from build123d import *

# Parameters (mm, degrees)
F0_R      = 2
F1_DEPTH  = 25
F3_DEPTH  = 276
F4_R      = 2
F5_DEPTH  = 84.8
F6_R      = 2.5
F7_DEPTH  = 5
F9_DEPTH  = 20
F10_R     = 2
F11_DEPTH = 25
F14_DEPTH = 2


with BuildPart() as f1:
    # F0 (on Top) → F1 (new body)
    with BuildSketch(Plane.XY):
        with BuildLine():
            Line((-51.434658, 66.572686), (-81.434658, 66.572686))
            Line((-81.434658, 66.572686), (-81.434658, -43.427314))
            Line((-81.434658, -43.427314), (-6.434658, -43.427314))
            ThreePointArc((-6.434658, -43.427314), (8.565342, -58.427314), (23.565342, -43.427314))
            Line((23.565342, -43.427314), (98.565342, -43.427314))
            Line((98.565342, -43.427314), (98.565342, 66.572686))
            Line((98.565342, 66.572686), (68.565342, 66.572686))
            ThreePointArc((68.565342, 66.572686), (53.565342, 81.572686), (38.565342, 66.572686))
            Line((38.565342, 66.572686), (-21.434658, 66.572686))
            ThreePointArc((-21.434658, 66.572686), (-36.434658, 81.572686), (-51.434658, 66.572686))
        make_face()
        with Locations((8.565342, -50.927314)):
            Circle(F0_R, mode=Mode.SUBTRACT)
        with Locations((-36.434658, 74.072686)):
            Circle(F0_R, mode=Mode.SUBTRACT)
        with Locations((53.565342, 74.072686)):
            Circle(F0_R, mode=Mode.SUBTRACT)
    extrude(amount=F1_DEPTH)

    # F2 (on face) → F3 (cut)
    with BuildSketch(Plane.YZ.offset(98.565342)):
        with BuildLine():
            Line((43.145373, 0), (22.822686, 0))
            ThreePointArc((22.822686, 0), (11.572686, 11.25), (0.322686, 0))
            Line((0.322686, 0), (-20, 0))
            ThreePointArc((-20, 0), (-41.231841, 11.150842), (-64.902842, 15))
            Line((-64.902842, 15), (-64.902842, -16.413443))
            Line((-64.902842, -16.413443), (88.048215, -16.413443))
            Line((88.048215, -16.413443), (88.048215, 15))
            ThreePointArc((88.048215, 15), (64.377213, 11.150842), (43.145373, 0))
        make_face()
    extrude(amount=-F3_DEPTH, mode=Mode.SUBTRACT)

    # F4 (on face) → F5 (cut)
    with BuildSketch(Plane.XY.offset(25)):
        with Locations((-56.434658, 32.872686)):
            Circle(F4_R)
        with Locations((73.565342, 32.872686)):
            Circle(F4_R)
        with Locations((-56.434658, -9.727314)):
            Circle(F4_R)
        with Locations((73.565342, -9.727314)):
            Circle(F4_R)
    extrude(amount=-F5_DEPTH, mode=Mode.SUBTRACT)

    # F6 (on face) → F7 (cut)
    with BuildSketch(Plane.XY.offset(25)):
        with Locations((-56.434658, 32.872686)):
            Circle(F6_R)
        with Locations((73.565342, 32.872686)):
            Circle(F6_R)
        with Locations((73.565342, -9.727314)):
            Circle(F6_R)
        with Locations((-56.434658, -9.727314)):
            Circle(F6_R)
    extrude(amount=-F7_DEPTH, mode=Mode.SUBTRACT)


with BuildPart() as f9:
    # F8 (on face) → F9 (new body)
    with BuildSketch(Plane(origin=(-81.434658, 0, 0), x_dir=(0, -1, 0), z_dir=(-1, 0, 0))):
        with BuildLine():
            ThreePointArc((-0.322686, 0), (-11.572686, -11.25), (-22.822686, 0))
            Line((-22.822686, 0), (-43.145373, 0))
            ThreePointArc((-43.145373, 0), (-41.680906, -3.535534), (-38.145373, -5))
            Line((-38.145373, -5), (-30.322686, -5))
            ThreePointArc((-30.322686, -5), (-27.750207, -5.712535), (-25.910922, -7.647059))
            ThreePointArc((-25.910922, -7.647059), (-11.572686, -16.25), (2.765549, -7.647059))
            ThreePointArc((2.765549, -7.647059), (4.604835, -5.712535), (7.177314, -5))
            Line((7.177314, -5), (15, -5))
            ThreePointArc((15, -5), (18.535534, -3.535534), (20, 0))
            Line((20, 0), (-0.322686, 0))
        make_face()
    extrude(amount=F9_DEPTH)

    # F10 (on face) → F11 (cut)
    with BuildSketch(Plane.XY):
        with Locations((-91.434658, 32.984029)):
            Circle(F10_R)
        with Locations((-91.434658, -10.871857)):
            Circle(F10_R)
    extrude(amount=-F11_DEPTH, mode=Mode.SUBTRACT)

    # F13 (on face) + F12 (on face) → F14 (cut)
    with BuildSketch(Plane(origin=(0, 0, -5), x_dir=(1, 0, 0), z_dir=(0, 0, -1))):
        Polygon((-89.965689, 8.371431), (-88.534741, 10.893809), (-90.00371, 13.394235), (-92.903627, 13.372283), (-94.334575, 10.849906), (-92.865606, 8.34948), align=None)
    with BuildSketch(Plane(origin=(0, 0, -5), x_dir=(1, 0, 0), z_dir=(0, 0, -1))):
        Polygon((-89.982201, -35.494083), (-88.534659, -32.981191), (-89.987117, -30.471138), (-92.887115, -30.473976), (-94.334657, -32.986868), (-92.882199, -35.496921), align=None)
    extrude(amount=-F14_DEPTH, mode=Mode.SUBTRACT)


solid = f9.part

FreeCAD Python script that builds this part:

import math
import FreeCAD as App
import Part
import Sketcher
Q = App.Units.Quantity

doc = App.newDocument("Part")
body = doc.addObject("PartDesign::Body", "Body")

# Sketch on XY plane
sketch1 = body.newObject("Sketcher::SketchObject", "Sketch")
sketch1.AttachmentSupport = (doc.getObject("XY_Plane"), [""])
sketch1.MapMode = "FlatFace"
sketch1.addGeometry(Part.LineSegment(App.Vector(-51.4, 66.6, 0), App.Vector(-81.4, 66.6, 0)), False)
sketch1.addGeometry(Part.LineSegment(App.Vector(-81.4, 66.6, 0), App.Vector(-81.4, -43.4, 0)), False)
sketch1.addGeometry(Part.LineSegment(App.Vector(-81.4, -43.4, 0), App.Vector(-6.4, -43.4, 0)), False)
sketch1.addGeometry(Part.ArcOfCircle(Part.Circle(App.Vector(8.6, -43.4, 0), App.Vector(0, 0, 1), 15), math.radians(180), math.radians(360)), False)
sketch1.addGeometry(Part.LineSegment(App.Vector(23.6, -43.4, 0), App.Vector(98.6, -43.4, 0)), False)
sketch1.addGeometry(Part.LineSegment(App.Vector(98.6, -43.4, 0), App.Vector(98.6, 66.6, 0)), False)
sketch1.addGeometry(Part.LineSegment(App.Vector(98.6, 66.6, 0), App.Vector(68.6, 66.6, 0)), False)
sketch1.addGeometry(Part.ArcOfCircle(Part.Circle(App.Vector(53.6, 66.6, 0), App.Vector(0, 0, 1), 15), math.radians(0), math.radians(180)), False)
sketch1.addGeometry(Part.LineSegment(App.Vector(38.6, 66.6, 0), App.Vector(-21.4, 66.6, 0)), False)
sketch1.addGeometry(Part.ArcOfCircle(Part.Circle(App.Vector(-36.4, 66.6, 0), App.Vector(0, 0, 1), 15), math.radians(0), math.radians(180)), False)
sketch1.addGeometry(Part.Circle(App.Vector(8.6, -50.9, 0), App.Vector(0, 0, 1), 2), False)
sketch1.addGeometry(Part.Circle(App.Vector(-36.4, 74.1, 0), App.Vector(0, 0, 1), 2), False)
sketch1.addGeometry(Part.Circle(App.Vector(53.6, 74.1, 0), App.Vector(0, 0, 1), 2), False)
sketch1.addConstraint(Sketcher.Constraint("Coincident", 0, 2, 1, 1))
sketch1.addConstraint(Sketcher.Constraint("Coincident", 1, 2, 2, 1))
sketch1.addConstraint(Sketcher.Constraint("Coincident", 2, 2, 3, 1))
sketch1.addConstraint(Sketcher.Constraint("Coincident", 3, 2, 4, 1))
sketch1.addConstraint(Sketcher.Constraint("Coincident", 4, 2, 5, 1))
sketch1.addConstraint(Sketcher.Constraint("Coincident", 5, 2, 6, 1))
sketch1.addConstraint(Sketcher.Constraint("Coincident", 6, 2, 7, 1))
sketch1.addConstraint(Sketcher.Constraint("Coincident", 7, 2, 8, 1))
sketch1.addConstraint(Sketcher.Constraint("Coincident", 8, 2, 9, 1))
sketch1.addConstraint(Sketcher.Constraint("Coincident", 9, 2, 0, 1))
sketch1.addConstraint(Sketcher.Constraint("Horizontal", 0))
sketch1.addConstraint(Sketcher.Constraint("Vertical", 1))
sketch1.addConstraint(Sketcher.Constraint("Horizontal", 2))
sketch1.addConstraint(Sketcher.Constraint("Horizontal", 4))
sketch1.addConstraint(Sketcher.Constraint("Vertical", 5))
sketch1.addConstraint(Sketcher.Constraint("Horizontal", 6))
sketch1.addConstraint(Sketcher.Constraint("Horizontal", 8))
sketch1.addConstraint(Sketcher.Constraint("Equal", 3, 7))
sketch1.addConstraint(Sketcher.Constraint("Equal", 7, 9))
sketch1.addConstraint(Sketcher.Constraint("Equal", 10, 11))
sketch1.addConstraint(Sketcher.Constraint("Equal", 11, 12))
sketch1.addConstraint(Sketcher.Constraint("Horizontal", 7, 3, 9, 3))
sketch1.addConstraint(Sketcher.Constraint("Horizontal", 11, 3, 12, 3))
sketch1.addConstraint(Sketcher.Constraint("Horizontal", 9, 3, 0, 2))
sketch1.addConstraint(Sketcher.Constraint("Horizontal", 3, 3, 1, 2))
sketch1.addConstraint(Sketcher.Constraint("Horizontal", 2, 2, 3, 2))
sketch1.addConstraint(Sketcher.Constraint("Horizontal", 0, 2, 5, 2))
sketch1.addConstraint(Sketcher.Constraint("Horizontal", 6, 2, 7, 2))
sketch1.addConstraint(Sketcher.Constraint("Vertical", 3, 3, 10, 3))
sketch1.addConstraint(Sketcher.Constraint("Vertical", 9, 3, 11, 3))
sketch1.addConstraint(Sketcher.Constraint("Vertical", 7, 3, 12, 3))
sketch1.addConstraint(Sketcher.Constraint("Equal", 2, 4))
sketch1.addConstraint(Sketcher.Constraint("Equal", 0, 6))
sketch1.addConstraint(Sketcher.Constraint("Diameter", 10, Q("4 mm")))
sketch1.addConstraint(Sketcher.Constraint("Radius", 3, Q("15 mm")))
sketch1.addConstraint(Sketcher.Constraint("DistanceX", 0, 2, 0, 1, Q("30 mm")))
sketch1.addConstraint(Sketcher.Constraint("DistanceX", 2, 1, 2, 2, Q("75 mm")))
sketch1.addConstraint(Sketcher.Constraint("DistanceY", 1, 2, 1, 1, Q("110 mm")))
sketch1.addConstraint(Sketcher.Constraint("DistanceY", 10, 3, 11, 3, Q("125 mm")))
sketch1.addConstraint(Sketcher.Constraint("DistanceY", 10, 3, 3, 3, Q("7.5 mm")))
sketch1.addConstraint(Sketcher.Constraint("DistanceX", -1, 1, 3, 3, Q("8.565342 mm")))
sketch1.addConstraint(Sketcher.Constraint("DistanceY", 3, 3, -1, 1, Q("43.427314 mm")))
pad1 = body.newObject("PartDesign::Pad", "Pad")
pad1.Profile = sketch1
pad1.Length = 25

# Sketch on YZ plane
sketch2 = body.newObject("Sketcher::SketchObject", "Sketch001")
sketch2.AttachmentSupport = (doc.getObject("YZ_Plane"), [""])
sketch2.MapMode = "FlatFace"
sketch2.AttachmentOffset = App.Placement(App.Vector(0, 0, 98.565342), App.Rotation())
sketch2.addGeometry(Part.LineSegment(App.Vector(43, 0, 0), App.Vector(23, 0, 0)), False)
sketch2.addGeometry(Part.ArcOfCircle(Part.Circle(App.Vector(12, 0, 0), App.Vector(0, 0, 1), 11), math.radians(0), math.radians(180)), False)
sketch2.addGeometry(Part.LineSegment(App.Vector(0, 0, 0), App.Vector(-20, 0, 0)), False)
sketch2.addGeometry(Part.ArcOfCircle(Part.Circle(App.Vector(-65, -60, 0), App.Vector(0, 0, 1), 75), math.radians(53), math.radians(90)), False)
sketch2.addGeometry(Part.LineSegment(App.Vector(-65, 15, 0), App.Vector(-65, -16, 0)), False)
sketch2.addGeometry(Part.LineSegment(App.Vector(-65, -16, 0), App.Vector(88, -16, 0)), False)
sketch2.addGeometry(Part.LineSegment(App.Vector(88, -16, 0), App.Vector(88, 15, 0)), False)
sketch2.addGeometry(Part.ArcOfCircle(Part.Circle(App.Vector(88, -60, 0), App.Vector(0, 0, 1), 75), math.radians(90), math.radians(127)), False)
sketch2.addConstraint(Sketcher.Constraint("Coincident", 0, 2, 1, 1))
sketch2.addConstraint(Sketcher.Constraint("Coincident", 1, 2, 2, 1))
sketch2.addConstraint(Sketcher.Constraint("Coincident", 2, 2, 3, 1))
sketch2.addConstraint(Sketcher.Constraint("Coincident", 3, 2, 4, 1))
sketch2.addConstraint(Sketcher.Constraint("Coincident", 4, 2, 5, 1))
sketch2.addConstraint(Sketcher.Constraint("Coincident", 5, 2, 6, 1))
sketch2.addConstraint(Sketcher.Constraint("Coincident", 6, 2, 7, 1))
sketch2.addConstraint(Sketcher.Constraint("Coincident", 7, 2, 0, 1))
sketch2.addConstraint(Sketcher.Constraint("Horizontal", 0))
sketch2.addConstraint(Sketcher.Constraint("Horizontal", 2))
sketch2.addConstraint(Sketcher.Constraint("Vertical", 4))
sketch2.addConstraint(Sketcher.Constraint("Horizontal", 5))
sketch2.addConstraint(Sketcher.Constraint("Vertical", 6))
sketch2.addConstraint(Sketcher.Constraint("PointOnObject", 1, 3, -1))
sketch2.addConstraint(Sketcher.Constraint("PointOnObject", 0, 2, -1))
sketch2.addConstraint(Sketcher.Constraint("PointOnObject", 1, 2, -1))
sketch2.addConstraint(Sketcher.Constraint("Horizontal", 3, 2, 6, 2))
sketch2.addConstraint(Sketcher.Constraint("Equal", 0, 2))
sketch2.addConstraint(Sketcher.Constraint("Radius", 1, Q("11.25 mm")))
sketch2.addConstraint(Sketcher.Constraint("DistanceX", 2, 2, -1, 1, Q("20 mm")))
sketch2.addConstraint(Sketcher.Constraint("DistanceY", -1, 1, 3, 2, Q("15 mm")))
sketch2.addConstraint(Sketcher.Constraint("Radius", 7, Q("74.70883 mm")))
sketch2.addConstraint(Sketcher.Constraint("Radius", 3, Q("74.708835 mm")))
sketch2.addConstraint(Sketcher.Constraint("DistanceX", 0, 2, 0, 1, Q("20.322687 mm")))
sketch2.addConstraint(Sketcher.Constraint("DistanceX", 5, 1, 5, 2, Q("152.951057 mm")))
sketch2.addConstraint(Sketcher.Constraint("DistanceY", 4, 2, 4, 1, Q("31.413443 mm")))
sketch2.addConstraint(Sketcher.Constraint("DistanceX", 3, 2, 1, 2, Q("65.225528 mm")))
pocket1 = body.newObject("PartDesign::Pocket", "Pocket")
pocket1.Profile = sketch2
pocket1.Length = 276

# Sketch on XY plane
sketch3 = body.newObject("Sketcher::SketchObject", "Sketch002")
sketch3.AttachmentSupport = (doc.getObject("XY_Plane"), [""])
sketch3.MapMode = "FlatFace"
sketch3.AttachmentOffset = App.Placement(App.Vector(0, 0, 25), App.Rotation())
sketch3.addGeometry(Part.Circle(App.Vector(-56.4, 32.9, 0), App.Vector(0, 0, 1), 2), False)
sketch3.addGeometry(Part.Circle(App.Vector(73.6, 32.9, 0), App.Vector(0, 0, 1), 2), False)
sketch3.addGeometry(Part.Circle(App.Vector(-56.4, -9.7, 0), App.Vector(0, 0, 1), 2), False)
sketch3.addGeometry(Part.Circle(App.Vector(73.6, -9.7, 0), App.Vector(0, 0, 1), 2), False)
sketch3.addConstraint(Sketcher.Constraint("Equal", 0, 1))
sketch3.addConstraint(Sketcher.Constraint("Equal", 1, 2))
sketch3.addConstraint(Sketcher.Constraint("Equal", 2, 3))
sketch3.addConstraint(Sketcher.Constraint("Horizontal", 0, 3, 1, 3))
sketch3.addConstraint(Sketcher.Constraint("Horizontal", 2, 3, 3, 3))
sketch3.addConstraint(Sketcher.Constraint("Vertical", 0, 3, 2, 3))
sketch3.addConstraint(Sketcher.Constraint("Vertical", 1, 3, 3, 3))
sketch3.addConstraint(Sketcher.Constraint("Diameter", 0, Q("4 mm")))
sketch3.addConstraint(Sketcher.Constraint("DistanceX", 0, 3, 1, 3, Q("130 mm")))
sketch3.addConstraint(Sketcher.Constraint("DistanceY", 2, 3, 0, 3, Q("42.6 mm")))
sketch3.addConstraint(Sketcher.Constraint("DistanceX", -1, 1, 1, 3, Q("73.565342 mm")))
sketch3.addConstraint(Sketcher.Constraint("DistanceY", -1, 1, 0, 3, Q("32.872686 mm")))
pocket2 = body.newObject("PartDesign::Pocket", "Pocket001")
pocket2.Profile = sketch3
pocket2.Length = 84.8

# Sketch on XY plane
sketch4 = body.newObject("Sketcher::SketchObject", "Sketch003")
sketch4.AttachmentSupport = (doc.getObject("XY_Plane"), [""])
sketch4.MapMode = "FlatFace"
sketch4.AttachmentOffset = App.Placement(App.Vector(0, 0, 25), App.Rotation())
sketch4.addGeometry(Part.Circle(App.Vector(-56.4, 32.9, 0), App.Vector(0, 0, 1), 2.5), False)
sketch4.addGeometry(Part.Circle(App.Vector(73.6, 32.9, 0), App.Vector(0, 0, 1), 2.5), False)
sketch4.addGeometry(Part.Circle(App.Vector(73.6, -9.7, 0), App.Vector(0, 0, 1), 2.5), False)
sketch4.addGeometry(Part.Circle(App.Vector(-56.4, -9.7, 0), App.Vector(0, 0, 1), 2.5), False)
sketch4.addConstraint(Sketcher.Constraint("Equal", 0, 1))
sketch4.addConstraint(Sketcher.Constraint("Equal", 1, 2))
sketch4.addConstraint(Sketcher.Constraint("Equal", 2, 3))
sketch4.addConstraint(Sketcher.Constraint("Horizontal", 0, 3, 1, 3))
sketch4.addConstraint(Sketcher.Constraint("Horizontal", 2, 3, 3, 3))
sketch4.addConstraint(Sketcher.Constraint("Vertical", 1, 3, 2, 3))
sketch4.addConstraint(Sketcher.Constraint("Vertical", 0, 3, 3, 3))
sketch4.addConstraint(Sketcher.Constraint("Diameter", 0, Q("5 mm")))
sketch4.addConstraint(Sketcher.Constraint("DistanceX", 0, 3, 1, 3, Q("130 mm")))
sketch4.addConstraint(Sketcher.Constraint("DistanceY", 2, 3, 1, 3, Q("42.6 mm")))
sketch4.addConstraint(Sketcher.Constraint("DistanceX", -1, 1, 1, 3, Q("73.565342 mm")))
sketch4.addConstraint(Sketcher.Constraint("DistanceY", -1, 1, 0, 3, Q("32.872686 mm")))
pocket3 = body.newObject("PartDesign::Pocket", "Pocket002")
pocket3.Profile = sketch4
pocket3.Length = 5
body2 = doc.addObject("PartDesign::Body", "Body001")

# Sketch on YZ plane
sketch5 = body2.newObject("Sketcher::SketchObject", "Sketch004")
sketch5.AttachmentSupport = (doc.getObject("YZ_Plane001"), [""])
sketch5.MapMode = "FlatFace"
sketch5.AttachmentOffset = App.Placement(App.Vector(0, 0, -81.434658), App.Rotation())
sketch5.addGeometry(Part.ArcOfCircle(Part.Circle(App.Vector(11.6, 0, 0), App.Vector(0, 0, 1), 11.2), math.radians(180), math.radians(360)), False)
sketch5.addGeometry(Part.LineSegment(App.Vector(22.8, 0, 0), App.Vector(43.1, 0, 0)), False)
sketch5.addGeometry(Part.ArcOfCircle(Part.Circle(App.Vector(38.1, 0, 0), App.Vector(0, 0, 1), 5), math.radians(-90), math.radians(0)), False)
sketch5.addGeometry(Part.LineSegment(App.Vector(38.1, -5, 0), App.Vector(30.3, -5, 0)), False)
sketch5.addGeometry(Part.ArcOfCircle(Part.Circle(App.Vector(30.3, -10, 0), App.Vector(0, 0, 1), 5), math.radians(90), math.radians(152)), False)
sketch5.addGeometry(Part.ArcOfCircle(Part.Circle(App.Vector(11.6, 0, 0), App.Vector(0, 0, 1), 16.3), math.radians(-152), math.radians(-28)), False)
sketch5.addGeometry(Part.ArcOfCircle(Part.Circle(App.Vector(-7.2, -10, 0), App.Vector(0, 0, 1), 5), math.radians(28), math.radians(90)), False)
sketch5.addGeometry(Part.LineSegment(App.Vector(-7.2, -5, 0), App.Vector(-15, -5, 0)), False)
sketch5.addGeometry(Part.ArcOfCircle(Part.Circle(App.Vector(-15, 0, 0), App.Vector(0, 0, 1), 5), math.radians(180), math.radians(270)), False)
sketch5.addGeometry(Part.LineSegment(App.Vector(-20, 0, 0), App.Vector(0.3, 0, 0)), False)
sketch5.addConstraint(Sketcher.Constraint("Coincident", 0, 2, 1, 1))
sketch5.addConstraint(Sketcher.Constraint("Coincident", 1, 2, 2, 2))
sketch5.addConstraint(Sketcher.Constraint("Tangent", 2, 1, 3, 1))
sketch5.addConstraint(Sketcher.Constraint("Tangent", 3, 2, 4, 1))
sketch5.addConstraint(Sketcher.Constraint("Tangent", 4, 2, 5, 2))
sketch5.addConstraint(Sketcher.Constraint("Tangent", 5, 1, 6, 1))
sketch5.addConstraint(Sketcher.Constraint("Tangent", 6, 2, 7, 1))
sketch5.addConstraint(Sketcher.Constraint("Tangent", 7, 2, 8, 2))
sketch5.addConstraint(Sketcher.Constraint("Coincident", 8, 1, 9, 1))
sketch5.addConstraint(Sketcher.Constraint("Coincident", 9, 2, 0, 1))
sketch5.addConstraint(Sketcher.Constraint("Horizontal", 1))
sketch5.addConstraint(Sketcher.Constraint("Horizontal", 3))
sketch5.addConstraint(Sketcher.Constraint("Horizontal", 7))
sketch5.addConstraint(Sketcher.Constraint("Horizontal", 9))
sketch5.addConstraint(Sketcher.Constraint("Coincident", 5, 3, 0, 3))
sketch5.addConstraint(Sketcher.Constraint("Equal", 6, 8))
sketch5.addConstraint(Sketcher.Constraint("PointOnObject", 0, 3, -1))
sketch5.addConstraint(Sketcher.Constraint("PointOnObject", 2, 3, -1))
sketch5.addConstraint(Sketcher.Constraint("PointOnObject", 8, 3, -1))
sketch5.addConstraint(Sketcher.Constraint("PointOnObject", 0, 2, -1))
sketch5.addConstraint(Sketcher.Constraint("PointOnObject", 8, 1, -1))
sketch5.addConstraint(Sketcher.Constraint("Horizontal", 4, 2, 5, 1))
sketch5.addConstraint(Sketcher.Constraint("Horizontal", 3, 2, 6, 2))
sketch5.addConstraint(Sketcher.Constraint("Equal", 3, 7))
sketch5.addConstraint(Sketcher.Constraint("Radius", 2, Q("5.000001 mm")))
sketch5.addConstraint(Sketcher.Constraint("Radius", 0, Q("11.25 mm")))
sketch5.addConstraint(Sketcher.Constraint("Radius", 5, Q("16.25 mm")))
sketch5.addConstraint(Sketcher.Constraint("DistanceX", 8, 3, -1, 1, Q("15 mm")))
sketch5.addConstraint(Sketcher.Constraint("DistanceX", 1, 1, 1, 2, Q("20.322687 mm")))
pad2 = body2.newObject("PartDesign::Pad", "Pad001")
pad2.Profile = sketch5
pad2.Length = 20
pad2.Reversed = True

# Sketch on XY plane
sketch6 = body2.newObject("Sketcher::SketchObject", "Sketch005")
sketch6.AttachmentSupport = (doc.getObject("XY_Plane001"), [""])
sketch6.MapMode = "FlatFace"
sketch6.addGeometry(Part.Circle(App.Vector(-91.4, 33, 0), App.Vector(0, 0, 1), 2), False)
sketch6.addGeometry(Part.Circle(App.Vector(-91.4, -10.9, 0), App.Vector(0, 0, 1), 2), False)
sketch6.addConstraint(Sketcher.Constraint("Equal", 0, 1))
sketch6.addConstraint(Sketcher.Constraint("Vertical", 0, 3, 1, 3))
sketch6.addConstraint(Sketcher.Constraint("Diameter", 0, Q("4 mm")))
sketch6.addConstraint(Sketcher.Constraint("DistanceX", 0, 3, -1, 1, Q("91.434658 mm")))
sketch6.addConstraint(Sketcher.Constraint("DistanceY", -1, 1, 0, 3, Q("32.984029 mm")))
sketch6.addConstraint(Sketcher.Constraint("DistanceY", 1, 3, -1, 1, Q("10.871857 mm")))
pocket4 = body2.newObject("PartDesign::Pocket", "Pocket003")
pocket4.Profile = sketch6
pocket4.Length = 25

# Sketch on XY plane
sketch7 = body2.newObject("Sketcher::SketchObject", "Sketch006")
sketch7.AttachmentSupport = (doc.getObject("XY_Plane001"), [""])
sketch7.MapMode = "FlatFace"
sketch7.AttachmentOffset = App.Placement(App.Vector(0, 0, -5), App.Rotation())
sketch7.addGeometry(Part.LineSegment(App.Vector(-90, -8.4, 0), App.Vector(-88.5, -10.9, 0)), False)
sketch7.addGeometry(Part.LineSegment(App.Vector(-88.5, -10.9, 0), App.Vector(-90, -13.4, 0)), False)
sketch7.addGeometry(Part.LineSegment(App.Vector(-90, -13.4, 0), App.Vector(-92.9, -13.4, 0)), False)
sketch7.addGeometry(Part.LineSegment(App.Vector(-92.9, -13.4, 0), App.Vector(-94.3, -10.8, 0)), False)
sketch7.addGeometry(Part.LineSegment(App.Vector(-94.3, -10.8, 0), App.Vector(-92.9, -8.3, 0)), False)
sketch7.addGeometry(Part.LineSegment(App.Vector(-92.9, -8.3, 0), App.Vector(-90, -8.4, 0)), False)
sketch7.addGeometry(Part.LineSegment(App.Vector(-90, 35.5, 0), App.Vector(-88.5, 33, 0)), False)
sketch7.addGeometry(Part.LineSegment(App.Vector(-88.5, 33, 0), App.Vector(-90, 30.5, 0)), False)
sketch7.addGeometry(Part.LineSegment(App.Vector(-90, 30.5, 0), App.Vector(-92.9, 30.5, 0)), False)
sketch7.addGeometry(Part.LineSegment(App.Vector(-92.9, 30.5, 0), App.Vector(-94.3, 33, 0)), False)
sketch7.addGeometry(Part.LineSegment(App.Vector(-94.3, 33, 0), App.Vector(-92.9, 35.5, 0)), False)
sketch7.addGeometry(Part.LineSegment(App.Vector(-92.9, 35.5, 0), App.Vector(-90, 35.5, 0)), False)
sketch7.addConstraint(Sketcher.Constraint("Coincident", 0, 2, 1, 1))
sketch7.addConstraint(Sketcher.Constraint("Coincident", 1, 2, 2, 1))
sketch7.addConstraint(Sketcher.Constraint("Coincident", 2, 2, 3, 1))
sketch7.addConstraint(Sketcher.Constraint("Coincident", 3, 2, 4, 1))
sketch7.addConstraint(Sketcher.Constraint("Coincident", 4, 2, 5, 1))
sketch7.addConstraint(Sketcher.Constraint("Coincident", 5, 2, 0, 1))
sketch7.addConstraint(Sketcher.Constraint("Coincident", 6, 2, 7, 1))
sketch7.addConstraint(Sketcher.Constraint("Coincident", 7, 2, 8, 1))
sketch7.addConstraint(Sketcher.Constraint("Coincident", 8, 2, 9, 1))
sketch7.addConstraint(Sketcher.Constraint("Coincident", 9, 2, 10, 1))
sketch7.addConstraint(Sketcher.Constraint("Coincident", 10, 2, 11, 1))
sketch7.addConstraint(Sketcher.Constraint("Coincident", 11, 2, 6, 1))
sketch7.addConstraint(Sketcher.Constraint("Parallel", 0, 3))
sketch7.addConstraint(Sketcher.Constraint("Parallel", 1, 4))
sketch7.addConstraint(Sketcher.Constraint("Parallel", 2, 5))
sketch7.addConstraint(Sketcher.Constraint("Parallel", 6, 9))
sketch7.addConstraint(Sketcher.Constraint("Parallel", 7, 10))
sketch7.addConstraint(Sketcher.Constraint("Parallel", 8, 11))
sketch7.addConstraint(Sketcher.Constraint("Equal", 0, 1))
sketch7.addConstraint(Sketcher.Constraint("Equal", 1, 2))
sketch7.addConstraint(Sketcher.Constraint("Equal", 2, 3))
sketch7.addConstraint(Sketcher.Constraint("Equal", 5, 6))
sketch7.addConstraint(Sketcher.Constraint("Equal", 6, 7))
sketch7.addConstraint(Sketcher.Constraint("Equal", 7, 8))
sketch7.addConstraint(Sketcher.Constraint("Equal", 8, 9))
sketch7.addConstraint(Sketcher.Constraint("Distance", 0, Q("2.900001 mm")))
sketch7.addConstraint(Sketcher.Constraint("DistanceX", 9, 2, 6, 2, Q("5.799998 mm")))
sketch7.addConstraint(Sketcher.Constraint("DistanceY", 0, 2, 6, 2, Q("43.875 mm")))
sketch7.addConstraint(Sketcher.Constraint("DistanceX", 10, 2, -1, 1, Q("92.882199 mm")))
sketch7.addConstraint(Sketcher.Constraint("DistanceY", 5, 2, 9, 2, Q("41.358299 mm")))
sketch7.addConstraint(Sketcher.Constraint("DistanceY", 4, 2, 10, 2, Q("43.846401 mm")))
sketch7.addConstraint(Sketcher.Constraint("DistanceX", 0, 2, -1, 1, Q("88.534741 mm")))
sketch7.addConstraint(Sketcher.Constraint("DistanceY", 0, 2, -1, 1, Q("10.893809 mm")))
sketch7.addConstraint(Sketcher.Constraint("DistanceX", 1, 2, -1, 1, Q("90.00371 mm")))
sketch7.addConstraint(Sketcher.Constraint("DistanceY", 4, 2, -1, 1, Q("8.34948 mm")))
sketch7.addConstraint(Sketcher.Constraint("DistanceX", 5, 2, -1, 1, Q("89.965689 mm")))
pocket5 = body2.newObject("PartDesign::Pocket", "Pocket004")
pocket5.Profile = sketch7
pocket5.Length = 2
pocket5.Reversed = True
body.Visibility = False

doc.recompute()
